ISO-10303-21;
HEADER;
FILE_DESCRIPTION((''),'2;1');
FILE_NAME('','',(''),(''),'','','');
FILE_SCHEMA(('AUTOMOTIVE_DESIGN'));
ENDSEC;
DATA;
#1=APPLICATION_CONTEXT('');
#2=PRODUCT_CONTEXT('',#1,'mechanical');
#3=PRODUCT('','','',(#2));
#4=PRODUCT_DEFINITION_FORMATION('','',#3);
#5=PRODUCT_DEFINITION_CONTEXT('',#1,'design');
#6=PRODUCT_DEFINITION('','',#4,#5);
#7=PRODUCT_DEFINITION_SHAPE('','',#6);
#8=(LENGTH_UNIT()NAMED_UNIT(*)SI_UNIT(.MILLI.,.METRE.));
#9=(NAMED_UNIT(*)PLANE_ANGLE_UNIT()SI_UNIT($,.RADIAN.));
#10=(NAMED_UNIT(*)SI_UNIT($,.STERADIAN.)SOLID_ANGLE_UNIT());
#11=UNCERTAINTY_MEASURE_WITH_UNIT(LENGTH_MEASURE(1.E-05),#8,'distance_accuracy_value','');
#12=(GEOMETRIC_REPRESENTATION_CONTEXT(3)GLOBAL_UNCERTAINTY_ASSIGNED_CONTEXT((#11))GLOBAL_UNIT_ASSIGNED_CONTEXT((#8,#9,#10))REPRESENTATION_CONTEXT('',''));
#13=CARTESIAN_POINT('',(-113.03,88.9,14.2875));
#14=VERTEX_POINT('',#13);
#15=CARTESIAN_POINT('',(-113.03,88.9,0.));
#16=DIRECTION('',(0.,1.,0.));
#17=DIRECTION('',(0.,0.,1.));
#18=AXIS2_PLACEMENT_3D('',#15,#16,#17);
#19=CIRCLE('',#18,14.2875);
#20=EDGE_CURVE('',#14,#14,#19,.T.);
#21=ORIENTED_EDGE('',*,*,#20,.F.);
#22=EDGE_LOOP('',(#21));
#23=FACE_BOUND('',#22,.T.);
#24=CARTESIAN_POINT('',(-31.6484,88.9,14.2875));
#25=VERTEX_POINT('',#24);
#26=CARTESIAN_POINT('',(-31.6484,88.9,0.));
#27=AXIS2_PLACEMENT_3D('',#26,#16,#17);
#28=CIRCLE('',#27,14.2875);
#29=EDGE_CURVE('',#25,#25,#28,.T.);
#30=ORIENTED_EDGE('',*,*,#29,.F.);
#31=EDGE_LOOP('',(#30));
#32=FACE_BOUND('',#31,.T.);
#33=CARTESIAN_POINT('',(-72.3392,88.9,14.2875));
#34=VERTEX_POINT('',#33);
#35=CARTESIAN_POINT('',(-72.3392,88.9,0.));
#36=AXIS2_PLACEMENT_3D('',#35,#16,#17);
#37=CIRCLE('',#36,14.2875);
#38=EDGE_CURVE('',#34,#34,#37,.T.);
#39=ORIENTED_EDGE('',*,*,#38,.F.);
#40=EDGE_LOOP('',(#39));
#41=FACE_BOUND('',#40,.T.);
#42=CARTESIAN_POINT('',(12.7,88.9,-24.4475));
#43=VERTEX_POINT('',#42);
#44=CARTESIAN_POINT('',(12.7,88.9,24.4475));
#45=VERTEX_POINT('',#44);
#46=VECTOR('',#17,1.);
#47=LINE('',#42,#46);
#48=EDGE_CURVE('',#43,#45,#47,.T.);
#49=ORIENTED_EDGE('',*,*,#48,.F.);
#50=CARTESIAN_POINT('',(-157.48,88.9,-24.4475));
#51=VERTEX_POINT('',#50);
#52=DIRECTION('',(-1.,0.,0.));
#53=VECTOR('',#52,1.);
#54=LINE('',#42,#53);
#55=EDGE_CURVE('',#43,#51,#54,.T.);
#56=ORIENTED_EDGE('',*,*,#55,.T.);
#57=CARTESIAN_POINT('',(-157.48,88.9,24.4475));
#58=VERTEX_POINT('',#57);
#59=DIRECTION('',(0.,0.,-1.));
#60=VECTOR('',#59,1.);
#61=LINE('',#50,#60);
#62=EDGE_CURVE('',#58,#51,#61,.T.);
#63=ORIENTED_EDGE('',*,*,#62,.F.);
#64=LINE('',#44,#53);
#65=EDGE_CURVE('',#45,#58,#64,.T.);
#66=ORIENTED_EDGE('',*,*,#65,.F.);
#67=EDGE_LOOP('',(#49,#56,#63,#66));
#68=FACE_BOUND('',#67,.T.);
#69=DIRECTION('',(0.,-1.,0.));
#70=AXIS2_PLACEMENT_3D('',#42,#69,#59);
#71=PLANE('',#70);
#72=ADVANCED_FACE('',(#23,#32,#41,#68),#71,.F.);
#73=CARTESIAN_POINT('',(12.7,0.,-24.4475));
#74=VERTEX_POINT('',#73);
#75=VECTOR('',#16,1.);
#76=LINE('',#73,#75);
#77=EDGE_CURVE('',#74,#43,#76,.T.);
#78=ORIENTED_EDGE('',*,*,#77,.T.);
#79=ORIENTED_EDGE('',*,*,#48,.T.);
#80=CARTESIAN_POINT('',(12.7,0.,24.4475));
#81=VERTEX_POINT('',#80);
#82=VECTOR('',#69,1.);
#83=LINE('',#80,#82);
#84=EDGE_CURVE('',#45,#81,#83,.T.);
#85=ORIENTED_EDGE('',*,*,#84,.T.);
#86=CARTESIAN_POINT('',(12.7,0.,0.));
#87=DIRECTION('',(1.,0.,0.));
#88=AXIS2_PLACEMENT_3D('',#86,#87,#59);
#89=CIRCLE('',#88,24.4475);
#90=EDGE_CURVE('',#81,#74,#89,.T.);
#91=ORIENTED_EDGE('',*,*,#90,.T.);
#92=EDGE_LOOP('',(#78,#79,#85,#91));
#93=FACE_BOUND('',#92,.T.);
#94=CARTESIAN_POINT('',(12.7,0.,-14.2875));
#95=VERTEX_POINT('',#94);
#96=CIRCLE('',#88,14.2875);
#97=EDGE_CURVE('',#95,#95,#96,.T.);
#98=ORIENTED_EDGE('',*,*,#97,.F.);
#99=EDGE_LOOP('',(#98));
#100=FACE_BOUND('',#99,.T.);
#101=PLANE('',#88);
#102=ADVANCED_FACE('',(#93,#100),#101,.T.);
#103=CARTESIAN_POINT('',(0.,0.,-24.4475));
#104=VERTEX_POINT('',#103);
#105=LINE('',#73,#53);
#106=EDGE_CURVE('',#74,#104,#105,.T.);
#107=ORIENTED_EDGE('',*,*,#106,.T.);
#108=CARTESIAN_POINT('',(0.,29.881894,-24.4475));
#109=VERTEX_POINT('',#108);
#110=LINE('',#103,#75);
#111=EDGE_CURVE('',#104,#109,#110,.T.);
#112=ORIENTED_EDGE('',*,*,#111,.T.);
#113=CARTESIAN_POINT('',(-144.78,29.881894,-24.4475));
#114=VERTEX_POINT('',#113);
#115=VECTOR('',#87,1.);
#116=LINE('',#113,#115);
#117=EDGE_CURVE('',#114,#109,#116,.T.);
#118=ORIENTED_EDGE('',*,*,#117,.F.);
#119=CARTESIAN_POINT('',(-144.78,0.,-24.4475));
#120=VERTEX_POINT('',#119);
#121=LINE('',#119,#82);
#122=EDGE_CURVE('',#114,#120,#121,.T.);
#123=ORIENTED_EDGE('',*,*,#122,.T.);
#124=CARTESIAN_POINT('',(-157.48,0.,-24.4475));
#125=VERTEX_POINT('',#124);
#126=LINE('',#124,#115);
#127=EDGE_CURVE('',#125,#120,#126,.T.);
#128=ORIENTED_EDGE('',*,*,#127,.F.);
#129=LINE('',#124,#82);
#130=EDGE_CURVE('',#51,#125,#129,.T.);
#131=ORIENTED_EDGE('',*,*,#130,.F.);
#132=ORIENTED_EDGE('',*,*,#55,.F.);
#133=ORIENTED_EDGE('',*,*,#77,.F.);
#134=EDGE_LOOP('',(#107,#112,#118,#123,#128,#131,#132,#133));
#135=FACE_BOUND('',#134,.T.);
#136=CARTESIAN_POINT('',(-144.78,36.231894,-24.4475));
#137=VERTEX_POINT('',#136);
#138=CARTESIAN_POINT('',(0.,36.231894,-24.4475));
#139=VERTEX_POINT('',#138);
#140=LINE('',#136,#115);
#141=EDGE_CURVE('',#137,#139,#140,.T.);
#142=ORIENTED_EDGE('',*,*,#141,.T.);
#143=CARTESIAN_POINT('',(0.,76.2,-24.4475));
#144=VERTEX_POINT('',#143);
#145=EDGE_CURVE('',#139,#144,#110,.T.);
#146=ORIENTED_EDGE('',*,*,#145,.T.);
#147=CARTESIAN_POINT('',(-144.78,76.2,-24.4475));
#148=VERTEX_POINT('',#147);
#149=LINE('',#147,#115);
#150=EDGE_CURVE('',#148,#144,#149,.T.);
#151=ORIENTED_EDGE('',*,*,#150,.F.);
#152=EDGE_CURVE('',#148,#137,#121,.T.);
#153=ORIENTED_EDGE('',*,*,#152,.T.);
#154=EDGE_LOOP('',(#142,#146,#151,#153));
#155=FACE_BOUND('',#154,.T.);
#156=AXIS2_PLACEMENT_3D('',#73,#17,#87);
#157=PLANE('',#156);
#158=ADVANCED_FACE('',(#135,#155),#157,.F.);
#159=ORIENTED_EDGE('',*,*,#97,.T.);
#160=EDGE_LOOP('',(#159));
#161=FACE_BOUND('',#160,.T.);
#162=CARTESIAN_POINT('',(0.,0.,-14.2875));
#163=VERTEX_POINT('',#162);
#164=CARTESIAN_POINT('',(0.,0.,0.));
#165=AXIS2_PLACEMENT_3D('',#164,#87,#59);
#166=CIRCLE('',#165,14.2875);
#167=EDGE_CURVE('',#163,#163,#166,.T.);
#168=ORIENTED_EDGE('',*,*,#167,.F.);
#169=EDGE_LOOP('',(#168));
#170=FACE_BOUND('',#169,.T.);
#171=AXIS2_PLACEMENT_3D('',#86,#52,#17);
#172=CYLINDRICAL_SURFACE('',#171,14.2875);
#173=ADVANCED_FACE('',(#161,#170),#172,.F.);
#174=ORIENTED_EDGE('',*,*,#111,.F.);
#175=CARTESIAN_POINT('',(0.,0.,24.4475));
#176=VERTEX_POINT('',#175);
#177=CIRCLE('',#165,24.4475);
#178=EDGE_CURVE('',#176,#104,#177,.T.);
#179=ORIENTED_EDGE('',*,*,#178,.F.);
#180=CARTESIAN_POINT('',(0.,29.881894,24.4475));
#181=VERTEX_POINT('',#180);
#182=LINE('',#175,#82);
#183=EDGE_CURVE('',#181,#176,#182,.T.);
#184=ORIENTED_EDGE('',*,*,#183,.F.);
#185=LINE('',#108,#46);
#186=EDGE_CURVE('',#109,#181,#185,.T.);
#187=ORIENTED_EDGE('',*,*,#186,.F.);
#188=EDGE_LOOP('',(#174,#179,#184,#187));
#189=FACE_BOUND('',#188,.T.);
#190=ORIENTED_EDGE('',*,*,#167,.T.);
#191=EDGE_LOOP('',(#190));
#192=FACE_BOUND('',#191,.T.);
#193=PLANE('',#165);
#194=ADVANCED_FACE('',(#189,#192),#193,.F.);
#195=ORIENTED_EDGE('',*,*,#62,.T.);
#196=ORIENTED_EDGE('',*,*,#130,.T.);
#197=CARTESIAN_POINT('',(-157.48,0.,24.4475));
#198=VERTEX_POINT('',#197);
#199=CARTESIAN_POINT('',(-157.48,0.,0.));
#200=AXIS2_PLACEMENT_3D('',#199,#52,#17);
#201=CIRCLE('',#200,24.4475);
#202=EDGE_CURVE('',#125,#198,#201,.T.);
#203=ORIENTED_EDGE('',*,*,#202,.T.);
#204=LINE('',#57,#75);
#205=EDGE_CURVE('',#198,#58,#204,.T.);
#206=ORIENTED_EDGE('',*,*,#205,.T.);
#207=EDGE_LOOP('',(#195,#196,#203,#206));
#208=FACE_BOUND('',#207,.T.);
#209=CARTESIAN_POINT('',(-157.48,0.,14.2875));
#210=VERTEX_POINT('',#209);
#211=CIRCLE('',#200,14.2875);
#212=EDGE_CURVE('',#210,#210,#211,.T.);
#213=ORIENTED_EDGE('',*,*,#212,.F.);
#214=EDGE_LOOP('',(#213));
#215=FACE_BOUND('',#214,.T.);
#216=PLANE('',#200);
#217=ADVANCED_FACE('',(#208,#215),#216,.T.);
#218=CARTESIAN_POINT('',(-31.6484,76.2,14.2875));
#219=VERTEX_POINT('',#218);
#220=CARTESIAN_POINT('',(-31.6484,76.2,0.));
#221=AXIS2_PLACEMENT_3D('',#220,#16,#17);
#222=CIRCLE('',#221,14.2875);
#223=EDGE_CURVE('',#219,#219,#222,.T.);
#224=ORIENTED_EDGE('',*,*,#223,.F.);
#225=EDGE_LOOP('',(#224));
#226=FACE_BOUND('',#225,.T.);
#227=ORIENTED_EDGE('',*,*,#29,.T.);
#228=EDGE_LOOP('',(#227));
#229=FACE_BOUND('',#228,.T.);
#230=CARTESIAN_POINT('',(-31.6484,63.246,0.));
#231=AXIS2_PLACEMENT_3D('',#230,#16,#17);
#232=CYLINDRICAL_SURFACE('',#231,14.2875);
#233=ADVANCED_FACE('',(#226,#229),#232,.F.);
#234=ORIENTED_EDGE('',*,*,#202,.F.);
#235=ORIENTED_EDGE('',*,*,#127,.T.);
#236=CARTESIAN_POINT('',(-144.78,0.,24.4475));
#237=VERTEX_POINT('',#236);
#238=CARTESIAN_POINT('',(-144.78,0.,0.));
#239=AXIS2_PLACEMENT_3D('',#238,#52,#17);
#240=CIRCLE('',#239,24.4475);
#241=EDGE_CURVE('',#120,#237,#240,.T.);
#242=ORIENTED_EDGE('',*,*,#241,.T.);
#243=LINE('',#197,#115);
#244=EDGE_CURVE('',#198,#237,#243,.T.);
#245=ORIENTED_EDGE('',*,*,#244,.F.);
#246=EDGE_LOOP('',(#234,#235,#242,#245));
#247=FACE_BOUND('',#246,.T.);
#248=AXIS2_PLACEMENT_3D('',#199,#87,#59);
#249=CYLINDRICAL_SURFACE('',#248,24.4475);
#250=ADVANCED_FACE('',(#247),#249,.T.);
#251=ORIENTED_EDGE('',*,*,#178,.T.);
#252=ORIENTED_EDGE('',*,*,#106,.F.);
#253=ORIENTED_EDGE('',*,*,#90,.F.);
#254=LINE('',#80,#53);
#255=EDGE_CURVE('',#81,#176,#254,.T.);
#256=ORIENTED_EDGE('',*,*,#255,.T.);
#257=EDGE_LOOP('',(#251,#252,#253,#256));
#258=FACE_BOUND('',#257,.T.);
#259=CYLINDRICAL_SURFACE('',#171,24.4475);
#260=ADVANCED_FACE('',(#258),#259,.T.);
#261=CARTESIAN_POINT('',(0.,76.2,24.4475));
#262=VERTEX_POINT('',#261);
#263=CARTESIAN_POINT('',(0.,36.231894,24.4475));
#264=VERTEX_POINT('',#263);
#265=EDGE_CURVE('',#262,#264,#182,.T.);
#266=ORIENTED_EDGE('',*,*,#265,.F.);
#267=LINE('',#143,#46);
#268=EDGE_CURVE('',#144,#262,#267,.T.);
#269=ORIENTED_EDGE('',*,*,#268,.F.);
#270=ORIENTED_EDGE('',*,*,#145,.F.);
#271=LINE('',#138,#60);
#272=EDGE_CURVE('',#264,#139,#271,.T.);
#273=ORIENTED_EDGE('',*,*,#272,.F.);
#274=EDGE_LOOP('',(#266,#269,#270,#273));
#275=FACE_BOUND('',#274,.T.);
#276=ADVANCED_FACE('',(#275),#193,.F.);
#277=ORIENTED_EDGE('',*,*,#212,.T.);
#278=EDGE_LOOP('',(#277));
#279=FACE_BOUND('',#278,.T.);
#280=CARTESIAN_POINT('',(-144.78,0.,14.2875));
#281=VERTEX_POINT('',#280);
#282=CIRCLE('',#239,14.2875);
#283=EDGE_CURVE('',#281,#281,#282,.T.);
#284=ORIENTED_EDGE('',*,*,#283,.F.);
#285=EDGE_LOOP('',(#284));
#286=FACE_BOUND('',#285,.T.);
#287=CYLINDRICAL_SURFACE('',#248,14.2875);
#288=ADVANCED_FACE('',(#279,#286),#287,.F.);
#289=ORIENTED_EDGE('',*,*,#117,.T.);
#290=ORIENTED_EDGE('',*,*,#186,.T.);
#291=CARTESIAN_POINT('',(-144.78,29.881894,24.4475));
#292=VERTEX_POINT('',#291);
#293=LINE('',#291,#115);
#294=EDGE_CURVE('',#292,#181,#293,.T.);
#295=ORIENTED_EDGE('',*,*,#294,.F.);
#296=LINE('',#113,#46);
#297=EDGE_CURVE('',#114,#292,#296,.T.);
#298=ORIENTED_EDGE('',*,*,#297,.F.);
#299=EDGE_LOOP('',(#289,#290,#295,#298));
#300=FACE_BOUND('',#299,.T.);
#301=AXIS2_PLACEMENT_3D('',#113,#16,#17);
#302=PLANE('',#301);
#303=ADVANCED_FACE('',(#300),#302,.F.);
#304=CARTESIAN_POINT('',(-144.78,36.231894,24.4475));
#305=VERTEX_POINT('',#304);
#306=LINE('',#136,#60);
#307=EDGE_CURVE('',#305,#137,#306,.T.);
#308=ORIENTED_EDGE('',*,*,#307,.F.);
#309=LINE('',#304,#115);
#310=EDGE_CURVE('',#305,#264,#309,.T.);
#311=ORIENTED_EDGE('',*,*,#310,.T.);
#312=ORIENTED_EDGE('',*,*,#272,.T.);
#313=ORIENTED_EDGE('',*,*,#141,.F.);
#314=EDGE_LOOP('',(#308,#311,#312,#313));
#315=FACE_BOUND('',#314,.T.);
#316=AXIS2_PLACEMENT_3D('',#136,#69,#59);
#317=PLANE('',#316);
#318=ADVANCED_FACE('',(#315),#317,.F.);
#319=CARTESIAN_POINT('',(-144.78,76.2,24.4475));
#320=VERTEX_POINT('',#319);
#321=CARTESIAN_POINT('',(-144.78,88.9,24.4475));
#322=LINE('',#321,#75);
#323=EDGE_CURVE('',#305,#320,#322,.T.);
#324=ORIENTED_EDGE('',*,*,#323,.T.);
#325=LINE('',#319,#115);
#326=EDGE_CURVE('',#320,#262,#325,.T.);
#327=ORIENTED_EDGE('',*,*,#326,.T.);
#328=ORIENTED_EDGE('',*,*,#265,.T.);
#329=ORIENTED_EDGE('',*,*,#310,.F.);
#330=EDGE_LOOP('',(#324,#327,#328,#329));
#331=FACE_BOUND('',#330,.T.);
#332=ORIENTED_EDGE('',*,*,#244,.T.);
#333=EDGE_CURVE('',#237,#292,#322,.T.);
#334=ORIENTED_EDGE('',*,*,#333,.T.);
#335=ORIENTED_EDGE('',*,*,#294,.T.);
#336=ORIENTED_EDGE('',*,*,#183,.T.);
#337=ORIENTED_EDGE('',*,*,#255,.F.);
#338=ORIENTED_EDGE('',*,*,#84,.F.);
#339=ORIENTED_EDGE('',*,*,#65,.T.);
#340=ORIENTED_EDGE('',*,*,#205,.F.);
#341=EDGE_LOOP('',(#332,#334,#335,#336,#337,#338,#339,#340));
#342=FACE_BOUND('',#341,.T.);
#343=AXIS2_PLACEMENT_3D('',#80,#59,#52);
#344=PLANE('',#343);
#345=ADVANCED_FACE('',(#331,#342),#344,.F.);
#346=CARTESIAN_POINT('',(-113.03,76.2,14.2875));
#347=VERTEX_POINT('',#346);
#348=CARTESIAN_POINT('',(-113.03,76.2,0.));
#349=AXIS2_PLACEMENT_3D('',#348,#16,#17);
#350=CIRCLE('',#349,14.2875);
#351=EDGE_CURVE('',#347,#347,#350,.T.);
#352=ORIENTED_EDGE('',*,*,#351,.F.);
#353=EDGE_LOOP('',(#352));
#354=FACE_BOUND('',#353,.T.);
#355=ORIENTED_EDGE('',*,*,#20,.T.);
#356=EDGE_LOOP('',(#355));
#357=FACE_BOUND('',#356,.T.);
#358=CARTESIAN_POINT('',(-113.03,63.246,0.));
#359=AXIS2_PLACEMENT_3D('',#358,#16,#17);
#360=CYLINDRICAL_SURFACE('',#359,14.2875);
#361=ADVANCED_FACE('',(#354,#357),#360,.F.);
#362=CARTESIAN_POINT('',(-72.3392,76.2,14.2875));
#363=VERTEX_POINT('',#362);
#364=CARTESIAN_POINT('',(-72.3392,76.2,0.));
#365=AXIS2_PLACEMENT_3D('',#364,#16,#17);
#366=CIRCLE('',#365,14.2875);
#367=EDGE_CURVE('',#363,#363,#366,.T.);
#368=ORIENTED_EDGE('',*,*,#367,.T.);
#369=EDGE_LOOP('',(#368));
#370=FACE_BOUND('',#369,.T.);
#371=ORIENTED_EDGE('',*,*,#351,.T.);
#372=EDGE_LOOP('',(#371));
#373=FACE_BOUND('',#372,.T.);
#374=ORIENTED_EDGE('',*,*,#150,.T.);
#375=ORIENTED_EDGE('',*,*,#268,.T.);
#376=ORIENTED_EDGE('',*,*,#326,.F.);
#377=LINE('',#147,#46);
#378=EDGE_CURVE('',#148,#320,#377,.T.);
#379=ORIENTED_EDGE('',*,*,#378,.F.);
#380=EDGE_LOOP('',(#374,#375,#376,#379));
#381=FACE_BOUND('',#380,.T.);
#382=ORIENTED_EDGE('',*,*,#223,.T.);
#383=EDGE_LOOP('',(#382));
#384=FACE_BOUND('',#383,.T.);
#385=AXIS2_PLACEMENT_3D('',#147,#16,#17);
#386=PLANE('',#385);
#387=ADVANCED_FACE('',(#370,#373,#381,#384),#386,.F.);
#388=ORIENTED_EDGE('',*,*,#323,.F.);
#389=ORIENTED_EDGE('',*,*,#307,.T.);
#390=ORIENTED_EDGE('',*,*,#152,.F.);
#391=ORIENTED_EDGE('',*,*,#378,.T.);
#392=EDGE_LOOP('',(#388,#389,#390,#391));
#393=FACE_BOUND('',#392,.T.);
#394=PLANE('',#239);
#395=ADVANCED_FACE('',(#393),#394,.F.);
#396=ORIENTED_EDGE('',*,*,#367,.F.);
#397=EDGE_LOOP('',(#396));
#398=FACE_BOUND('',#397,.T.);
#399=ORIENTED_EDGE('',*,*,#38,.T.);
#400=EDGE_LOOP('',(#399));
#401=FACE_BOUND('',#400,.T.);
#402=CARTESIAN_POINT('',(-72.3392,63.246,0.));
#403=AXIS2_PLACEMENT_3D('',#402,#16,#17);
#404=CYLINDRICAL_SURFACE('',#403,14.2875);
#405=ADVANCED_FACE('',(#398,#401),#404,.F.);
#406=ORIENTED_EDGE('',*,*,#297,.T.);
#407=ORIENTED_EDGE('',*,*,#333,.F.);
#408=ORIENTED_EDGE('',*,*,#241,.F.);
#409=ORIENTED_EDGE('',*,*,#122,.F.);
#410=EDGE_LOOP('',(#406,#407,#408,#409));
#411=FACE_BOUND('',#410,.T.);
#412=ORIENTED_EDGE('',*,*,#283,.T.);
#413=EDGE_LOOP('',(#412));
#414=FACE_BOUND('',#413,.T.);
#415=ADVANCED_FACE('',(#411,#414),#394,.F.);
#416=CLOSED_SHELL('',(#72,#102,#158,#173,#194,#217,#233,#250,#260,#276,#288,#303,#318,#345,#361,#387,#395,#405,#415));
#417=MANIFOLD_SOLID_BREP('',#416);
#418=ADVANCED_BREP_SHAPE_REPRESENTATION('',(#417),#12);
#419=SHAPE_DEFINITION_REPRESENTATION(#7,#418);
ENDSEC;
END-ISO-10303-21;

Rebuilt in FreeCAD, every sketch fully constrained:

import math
import FreeCAD as App
import Part
import Sketcher
from FreeCAD import Vector
Q = App.Units.Quantity

doc = App.newDocument("Part")
body = doc.addObject("PartDesign::Body", "Body")

sketch1 = body.newObject("Sketcher::SketchObject", "Sketch")
sketch1.AttachmentSupport = (doc.getObject("YZ_Plane"), [""])
sketch1.MapMode = "FlatFace"
sketch1.addGeometry(Part.LineSegment(Vector(89, 24, 0), Vector(0, 24, 0)), False)
sketch1.addGeometry(Part.ArcOfCircle(Part.Circle(Vector(0, 0, 0), Vector(0, 0, 1), 24), math.radians(90), math.radians(270)), False)
sketch1.addGeometry(Part.LineSegment(Vector(0, -24, 0), Vector(89, -24, 0)), False)
sketch1.addGeometry(Part.LineSegment(Vector(89, -24, 0), Vector(89, 24, 0)), False)
sketch1.addGeometry(Part.Circle(Vector(0, 0, 0), Vector(0, 0, 1), 14), False)
sketch1.addConstraint(Sketcher.Constraint("Tangent", 0, 2, 1, 1))
sketch1.addConstraint(Sketcher.Constraint("Tangent", 1, 2, 2, 1))
sketch1.addConstraint(Sketcher.Constraint("Coincident", 2, 2, 3, 1))
sketch1.addConstraint(Sketcher.Constraint("Coincident", 3, 2, 0, 1))
sketch1.addConstraint(Sketcher.Constraint("Horizontal", 0))
sketch1.addConstraint(Sketcher.Constraint("Horizontal", 2))
sketch1.addConstraint(Sketcher.Constraint("Vertical", 3))
sketch1.addConstraint(Sketcher.Constraint("Coincident", 1, 3, -1, 1))
sketch1.addConstraint(Sketcher.Constraint("Coincident", 4, 3, -1, 1))
sketch1.addConstraint(Sketcher.Constraint("Diameter", 4, Q("1.125 in")))
sketch1.addConstraint(Sketcher.Constraint("DistanceX", 0, 2, 0, 1, Q("3.5 in")))
sketch1.addConstraint(Sketcher.Constraint("Radius", 1, Q("0.9625 in")))
pad1 = body.newObject("PartDesign::Pad", "Pad")
pad1.Profile = sketch1
pad1.Length = Q("0.5 in")

sketch2 = body.newObject("Sketcher::SketchObject", "Sketch001")
sketch2.AttachmentSupport = (doc.getObject("YZ_Plane"), [""])
sketch2.MapMode = "FlatFace"
sketch2.addGeometry(Part.LineSegment(Vector(36, -24, 0), Vector(30, -24, 0)), False)
sketch2.addGeometry(Part.LineSegment(Vector(30, -24, 0), Vector(30, 24, 0)), False)
sketch2.addGeometry(Part.LineSegment(Vector(30, 24, 0), Vector(36, 24, 0)), False)
sketch2.addGeometry(Part.LineSegment(Vector(36, 24, 0), Vector(36, -24, 0)), False)
sketch2.addGeometry(Part.LineSegment(Vector(89, -24, 0), Vector(76, -24, 0)), False)
sketch2.addGeometry(Part.LineSegment(Vector(76, -24, 0), Vector(76, 24, 0)), False)
sketch2.addGeometry(Part.LineSegment(Vector(76, 24, 0), Vector(89, 24, 0)), False)
sketch2.addGeometry(Part.LineSegment(Vector(89, 24, 0), Vector(89, -24, 0)), False)
sketch2.addConstraint(Sketcher.Constraint("Coincident", 0, 2, 1, 1))
sketch2.addConstraint(Sketcher.Constraint("Coincident", 1, 2, 2, 1))
sketch2.addConstraint(Sketcher.Constraint("Coincident", 2, 2, 3, 1))
sketch2.addConstraint(Sketcher.Constraint("Coincident", 3, 2, 0, 1))
sketch2.addConstraint(Sketcher.Constraint("Coincident", 4, 2, 5, 1))
sketch2.addConstraint(Sketcher.Constraint("Coincident", 5, 2, 6, 1))
sketch2.addConstraint(Sketcher.Constraint("Coincident", 6, 2, 7, 1))
sketch2.addConstraint(Sketcher.Constraint("Coincident", 7, 2, 4, 1))
sketch2.addConstraint(Sketcher.Constraint("Horizontal", 0))
sketch2.addConstraint(Sketcher.Constraint("Vertical", 1))
sketch2.addConstraint(Sketcher.Constraint("Horizontal", 2))
sketch2.addConstraint(Sketcher.Constraint("Vertical", 3))
sketch2.addConstraint(Sketcher.Constraint("Horizontal", 4))
sketch2.addConstraint(Sketcher.Constraint("Vertical", 5))
sketch2.addConstraint(Sketcher.Constraint("Horizontal", 6))
sketch2.addConstraint(Sketcher.Constraint("Vertical", 7))
sketch2.addConstraint(Sketcher.Constraint("Horizontal", 3, 2, 4, 2))
sketch2.addConstraint(Sketcher.Constraint("Horizontal", 2, 2, 5, 2))
sketch2.addConstraint(Sketcher.Constraint("DistanceX", 4, 2, 4, 1, Q("0.5 in")))
sketch2.addConstraint(Sketcher.Constraint("DistanceX", -1, 1, 4, 2, Q("3 in")))
sketch2.addConstraint(Sketcher.Constraint("DistanceX", 0, 2, 0, 1, Q("0.25 in")))
sketch2.addConstraint(Sketcher.Constraint("DistanceY", 1, 1, 1, 2, Q("1.925 in")))
sketch2.addConstraint(Sketcher.Constraint("DistanceY", 0, 2, -1, 1, Q("0.9625 in")))
sketch2.addConstraint(Sketcher.Constraint("DistanceX", -1, 1, 0, 2, Q("29.881894 mm")))
pad2 = body.newObject("PartDesign::Pad", "Pad001")
pad2.Profile = sketch2
pad2.Length = Q("5.7 in")
pad2.Reversed = True

sketch3 = body.newObject("Sketcher::SketchObject", "Sketch002")
sketch3.AttachmentSupport = (doc.getObject("YZ_Plane"), [""])
sketch3.MapMode = "FlatFace"
sketch3.AttachmentOffset = App.Placement(Vector(0, 0, -6.2 * 25.4), App.Rotation())
sketch3.addGeometry(Part.LineSegment(Vector(89, -24, 0), Vector(0, -24, 0)), False)
sketch3.addGeometry(Part.ArcOfCircle(Part.Circle(Vector(0, 0, 0), Vector(0, 0, 1), 24), math.radians(90), math.radians(270)), False)
sketch3.addGeometry(Part.LineSegment(Vector(0, 24, 0), Vector(89, 24, 0)), False)
sketch3.addGeometry(Part.LineSegment(Vector(89, 24, 0), Vector(89, -24, 0)), False)
sketch3.addGeometry(Part.Circle(Vector(0, 0, 0), Vector(0, 0, 1), 14), False)
sketch3.addConstraint(Sketcher.Constraint("Tangent", 0, 2, 1, 2))
sketch3.addConstraint(Sketcher.Constraint("Tangent", 1, 1, 2, 1))
sketch3.addConstraint(Sketcher.Constraint("Coincident", 2, 2, 3, 1))
sketch3.addConstraint(Sketcher.Constraint("Coincident", 3, 2, 0, 1))
sketch3.addConstraint(Sketcher.Constraint("Horizontal", 0))
sketch3.addConstraint(Sketcher.Constraint("Horizontal", 2))
sketch3.addConstraint(Sketcher.Constraint("Vertical", 3))
sketch3.addConstraint(Sketcher.Constraint("Coincident", 1, 3, -1, 1))
sketch3.addConstraint(Sketcher.Constraint("Coincident", 4, 3, -1, 1))
sketch3.addConstraint(Sketcher.Constraint("Diameter", 4, Q("1.125 in")))
sketch3.addConstraint(Sketcher.Constraint("DistanceX", 0, 2, 0, 1, Q("3.5 in")))
sketch3.addConstraint(Sketcher.Constraint("Radius", 1, Q("0.9625 in")))
pad3 = body.newObject("PartDesign::Pad", "Pad002")
pad3.Profile = sketch3
pad3.Length = Q("0.5 in")

sketch4 = body.newObject("Sketcher::SketchObject", "Sketch003")
sketch4.AttachmentSupport = (doc.getObject("XZ_Plane"), [""])
sketch4.MapMode = "FlatFace"
sketch4.AttachmentOffset = App.Placement(Vector(0, 0, -3.5 * 25.4), App.Rotation())
sketch4.addGeometry(Part.Circle(Vector(-113, 0, 0), Vector(0, 0, 1), 14), False)
sketch4.addGeometry(Part.Circle(Vector(-72, 0, 0), Vector(0, 0, 1), 14), False)
sketch4.addGeometry(Part.Circle(Vector(-32, 0, 0), Vector(0, 0, 1), 14), False)
sketch4.addConstraint(Sketcher.Constraint("Equal", 0, 1))
sketch4.addConstraint(Sketcher.Constraint("Equal", 1, 2))
sketch4.addConstraint(Sketcher.Constraint("PointOnObject", 0, 3, -1))
sketch4.addConstraint(Sketcher.Constraint("PointOnObject", 1, 3, -1))
sketch4.addConstraint(Sketcher.Constraint("PointOnObject", 2, 3, -1))
sketch4.addConstraint(Sketcher.Constraint("Diameter", 0, Q("1.125 in")))
sketch4.addConstraint(Sketcher.Constraint("DistanceX", 0, 3, -1, 1, Q("4.45 in")))
sketch4.addConstraint(Sketcher.Constraint("DistanceX", 1, 3, -1, 1, Q("2.848 in")))
sketch4.addConstraint(Sketcher.Constraint("DistanceX", 2, 3, -1, 1, Q("1.246 in")))
pocket1 = body.newObject("PartDesign::Pocket", "Pocket")
pocket1.Profile = sketch4
pocket1.Length = Q("1.01 in")
pocket1.Reversed = True

doc.recompute()
